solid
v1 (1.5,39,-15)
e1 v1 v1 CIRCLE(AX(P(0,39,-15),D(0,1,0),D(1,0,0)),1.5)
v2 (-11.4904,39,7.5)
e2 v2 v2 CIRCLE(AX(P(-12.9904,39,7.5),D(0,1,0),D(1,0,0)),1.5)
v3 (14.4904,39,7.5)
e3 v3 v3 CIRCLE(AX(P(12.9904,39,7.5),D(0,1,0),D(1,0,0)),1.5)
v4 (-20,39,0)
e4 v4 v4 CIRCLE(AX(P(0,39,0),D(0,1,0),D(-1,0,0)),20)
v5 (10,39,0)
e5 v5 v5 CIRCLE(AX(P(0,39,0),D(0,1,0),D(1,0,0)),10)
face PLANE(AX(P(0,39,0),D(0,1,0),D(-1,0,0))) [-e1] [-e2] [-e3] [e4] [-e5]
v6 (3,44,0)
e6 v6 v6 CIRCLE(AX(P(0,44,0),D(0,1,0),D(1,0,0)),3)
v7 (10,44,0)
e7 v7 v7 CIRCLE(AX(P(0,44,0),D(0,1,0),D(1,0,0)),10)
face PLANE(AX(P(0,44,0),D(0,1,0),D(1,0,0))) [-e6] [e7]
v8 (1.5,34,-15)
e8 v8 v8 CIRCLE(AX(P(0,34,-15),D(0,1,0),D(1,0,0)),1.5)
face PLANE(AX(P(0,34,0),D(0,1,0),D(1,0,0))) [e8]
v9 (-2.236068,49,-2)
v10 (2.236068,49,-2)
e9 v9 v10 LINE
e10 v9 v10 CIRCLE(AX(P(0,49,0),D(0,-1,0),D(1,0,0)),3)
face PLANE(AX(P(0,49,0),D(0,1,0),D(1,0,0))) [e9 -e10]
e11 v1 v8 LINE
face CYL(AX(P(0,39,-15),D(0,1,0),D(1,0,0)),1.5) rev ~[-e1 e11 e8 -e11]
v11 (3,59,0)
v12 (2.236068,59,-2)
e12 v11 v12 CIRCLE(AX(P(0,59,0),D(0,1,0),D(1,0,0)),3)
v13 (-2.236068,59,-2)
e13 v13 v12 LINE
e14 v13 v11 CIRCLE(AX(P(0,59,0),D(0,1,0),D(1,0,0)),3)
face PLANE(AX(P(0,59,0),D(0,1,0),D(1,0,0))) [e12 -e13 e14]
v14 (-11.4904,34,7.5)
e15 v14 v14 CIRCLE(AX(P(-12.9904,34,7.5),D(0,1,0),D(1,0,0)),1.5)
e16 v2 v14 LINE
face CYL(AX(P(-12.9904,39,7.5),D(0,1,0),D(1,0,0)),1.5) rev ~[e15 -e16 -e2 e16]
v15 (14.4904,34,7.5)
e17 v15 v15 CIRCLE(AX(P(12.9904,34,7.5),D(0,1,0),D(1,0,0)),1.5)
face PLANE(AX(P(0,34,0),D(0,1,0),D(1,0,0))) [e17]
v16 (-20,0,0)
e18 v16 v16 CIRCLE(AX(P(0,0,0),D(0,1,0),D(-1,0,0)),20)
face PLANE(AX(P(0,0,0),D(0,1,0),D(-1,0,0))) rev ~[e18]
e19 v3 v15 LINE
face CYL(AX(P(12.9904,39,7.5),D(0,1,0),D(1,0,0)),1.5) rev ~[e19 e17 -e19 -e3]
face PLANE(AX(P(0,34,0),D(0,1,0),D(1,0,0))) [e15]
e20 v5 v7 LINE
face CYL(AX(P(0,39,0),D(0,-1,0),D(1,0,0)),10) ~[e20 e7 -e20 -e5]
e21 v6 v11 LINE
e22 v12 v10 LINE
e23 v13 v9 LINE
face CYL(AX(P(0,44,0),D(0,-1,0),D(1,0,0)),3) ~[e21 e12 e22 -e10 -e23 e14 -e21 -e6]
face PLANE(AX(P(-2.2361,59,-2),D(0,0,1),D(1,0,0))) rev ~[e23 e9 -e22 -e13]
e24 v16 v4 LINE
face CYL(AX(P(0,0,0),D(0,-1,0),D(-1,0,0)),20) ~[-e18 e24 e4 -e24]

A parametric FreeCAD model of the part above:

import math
import FreeCAD as App
import Part
import Sketcher
Q = App.Units.Quantity

doc = App.newDocument("Part")
body = doc.addObject("PartDesign::Body", "Body")

# Sketch on XZ plane
sketch1 = doc.addObject("Sketcher::SketchObject", "Sketch")
body.addObject(sketch1)
sketch1.AttachmentSupport = (doc.XZ_Plane, [""])
sketch1.MapMode = "FlatFace"
sketch1.addGeometry(Part.Circle(App.Vector(0, 0, 0), App.Vector(0, 0, 1), 20), False)
sketch1.addConstraint(Sketcher.Constraint("Coincident", 0, 3, -1, 1))
sketch1.addConstraint(Sketcher.Constraint("Diameter", 0, Q("40 mm")))
pad1 = doc.addObject("PartDesign::Pad", "Pad")
body.addObject(pad1)
pad1.Profile = sketch1
pad1.Length = 39
pad1.Reversed = True

# Sketch on XZ plane
sketch2 = doc.addObject("Sketcher::SketchObject", "Sketch001")
body.addObject(sketch2)
sketch2.AttachmentSupport = (doc.XZ_Plane, [""])
sketch2.MapMode = "FlatFace"
sketch2.AttachmentOffset = App.Placement(App.Vector(0, 0, -39), App.Rotation())
sketch2.addGeometry(Part.Circle(App.Vector(0, 0, 0), App.Vector(0, 0, 1), 10), False)
sketch2.addConstraint(Sketcher.Constraint("Coincident", 0, 3, -1, 1))
sketch2.addConstraint(Sketcher.Constraint("Diameter", 0, Q("20 mm")))
pad2 = doc.addObject("PartDesign::Pad", "Pad001")
body.addObject(pad2)
pad2.Profile = sketch2
pad2.Length = 5
pad2.Reversed = True

# Sketch on XZ plane
sketch3 = doc.addObject("Sketcher::SketchObject", "Sketch002")
body.addObject(sketch3)
sketch3.AttachmentSupport = (doc.XZ_Plane, [""])
sketch3.MapMode = "FlatFace"
sketch3.AttachmentOffset = App.Placement(App.Vector(0, 0, -44), App.Rotation())
sketch3.addGeometry(Part.Circle(App.Vector(0, 0, 0), App.Vector(0, 0, 1), 3), False)
sketch3.addConstraint(Sketcher.Constraint("Coincident", 0, 3, -1, 1))
sketch3.addConstraint(Sketcher.Constraint("Diameter", 0, Q("6 mm")))
pad3 = doc.addObject("PartDesign::Pad", "Pad002")
body.addObject(pad3)
pad3.Profile = sketch3
pad3.Length = 15
pad3.Reversed = True

# Sketch on XZ plane
sketch4 = doc.addObject("Sketcher::SketchObject", "Sketch003")
body.addObject(sketch4)
sketch4.AttachmentSupport = (doc.XZ_Plane, [""])
sketch4.MapMode = "FlatFace"
sketch4.AttachmentOffset = App.Placement(App.Vector(0, 0, -59), App.Rotation())
sketch4.addGeometry(Part.ArcOfCircle(Part.Circle(App.Vector(0, 0, 0), App.Vector(0, 0, 1), 3), math.radians(-138), math.radians(-42)), False)
sketch4.addGeometry(Part.LineSegment(App.Vector(-2.2, -2, 0), App.Vector(2.2, -2, 0)), False)
sketch4.addConstraint(Sketcher.Constraint("Coincident", 0, 1, 1, 1))
sketch4.addConstraint(Sketcher.Constraint("Coincident", 1, 2, 0, 2))
sketch4.addConstraint(Sketcher.Constraint("Horizontal", 1))
sketch4.addConstraint(Sketcher.Constraint("Coincident", 0, 3, -1, 1))
sketch4.addConstraint(Sketcher.Constraint("Radius", 0, Q("3 mm")))
sketch4.addConstraint(Sketcher.Constraint("DistanceY", 0, 1, -1, 1, Q("2 mm")))
pocket1 = doc.addObject("PartDesign::Pocket", "Pocket")
body.addObject(pocket1)
pocket1.Profile = sketch4
pocket1.Length = 10
pocket1.Reversed = True

# Sketch on XZ plane
sketch5 = doc.addObject("Sketcher::SketchObject", "Sketch004")
body.addObject(sketch5)
sketch5.AttachmentSupport = (doc.XZ_Plane, [""])
sketch5.MapMode = "FlatFace"
sketch5.AttachmentOffset = App.Placement(App.Vector(0, 0, -39), App.Rotation())
sketch5.addGeometry(Part.Circle(App.Vector(0, -15, 0), App.Vector(0, 0, 1), 1.5), False)
sketch5.addGeometry(Part.Circle(App.Vector(-13, 7.5, 0), App.Vector(0, 0, 1), 1.5), False)
sketch5.addGeometry(Part.Circle(App.Vector(13, 7.5, 0), App.Vector(0, 0, 1), 1.5), False)
sketch5.addConstraint(Sketcher.Constraint("Equal", 0, 1))
sketch5.addConstraint(Sketcher.Constraint("Equal", 1, 2))
sketch5.addConstraint(Sketcher.Constraint("Symmetric", 1, 3, 2, 3, -2))
sketch5.addConstraint(Sketcher.Constraint("PointOnObject", 0, 3, -2))
sketch5.addConstraint(Sketcher.Constraint("Diameter", 0, Q("3 mm")))
sketch5.addConstraint(Sketcher.Constraint("DistanceY", 0, 3, -1, 1, Q("15 mm")))
sketch5.addConstraint(Sketcher.Constraint("DistanceY", -1, 1, 1, 3, Q("7.5 mm")))
sketch5.addConstraint(Sketcher.Constraint("DistanceX", 1, 3, -1, 1, Q("12.9904 mm")))
pocket2 = doc.addObject("PartDesign::Pocket", "Pocket001")
body.addObject(pocket2)
pocket2.Profile = sketch5
pocket2.Length = 5
pocket2.Reversed = True

doc.recompute()
